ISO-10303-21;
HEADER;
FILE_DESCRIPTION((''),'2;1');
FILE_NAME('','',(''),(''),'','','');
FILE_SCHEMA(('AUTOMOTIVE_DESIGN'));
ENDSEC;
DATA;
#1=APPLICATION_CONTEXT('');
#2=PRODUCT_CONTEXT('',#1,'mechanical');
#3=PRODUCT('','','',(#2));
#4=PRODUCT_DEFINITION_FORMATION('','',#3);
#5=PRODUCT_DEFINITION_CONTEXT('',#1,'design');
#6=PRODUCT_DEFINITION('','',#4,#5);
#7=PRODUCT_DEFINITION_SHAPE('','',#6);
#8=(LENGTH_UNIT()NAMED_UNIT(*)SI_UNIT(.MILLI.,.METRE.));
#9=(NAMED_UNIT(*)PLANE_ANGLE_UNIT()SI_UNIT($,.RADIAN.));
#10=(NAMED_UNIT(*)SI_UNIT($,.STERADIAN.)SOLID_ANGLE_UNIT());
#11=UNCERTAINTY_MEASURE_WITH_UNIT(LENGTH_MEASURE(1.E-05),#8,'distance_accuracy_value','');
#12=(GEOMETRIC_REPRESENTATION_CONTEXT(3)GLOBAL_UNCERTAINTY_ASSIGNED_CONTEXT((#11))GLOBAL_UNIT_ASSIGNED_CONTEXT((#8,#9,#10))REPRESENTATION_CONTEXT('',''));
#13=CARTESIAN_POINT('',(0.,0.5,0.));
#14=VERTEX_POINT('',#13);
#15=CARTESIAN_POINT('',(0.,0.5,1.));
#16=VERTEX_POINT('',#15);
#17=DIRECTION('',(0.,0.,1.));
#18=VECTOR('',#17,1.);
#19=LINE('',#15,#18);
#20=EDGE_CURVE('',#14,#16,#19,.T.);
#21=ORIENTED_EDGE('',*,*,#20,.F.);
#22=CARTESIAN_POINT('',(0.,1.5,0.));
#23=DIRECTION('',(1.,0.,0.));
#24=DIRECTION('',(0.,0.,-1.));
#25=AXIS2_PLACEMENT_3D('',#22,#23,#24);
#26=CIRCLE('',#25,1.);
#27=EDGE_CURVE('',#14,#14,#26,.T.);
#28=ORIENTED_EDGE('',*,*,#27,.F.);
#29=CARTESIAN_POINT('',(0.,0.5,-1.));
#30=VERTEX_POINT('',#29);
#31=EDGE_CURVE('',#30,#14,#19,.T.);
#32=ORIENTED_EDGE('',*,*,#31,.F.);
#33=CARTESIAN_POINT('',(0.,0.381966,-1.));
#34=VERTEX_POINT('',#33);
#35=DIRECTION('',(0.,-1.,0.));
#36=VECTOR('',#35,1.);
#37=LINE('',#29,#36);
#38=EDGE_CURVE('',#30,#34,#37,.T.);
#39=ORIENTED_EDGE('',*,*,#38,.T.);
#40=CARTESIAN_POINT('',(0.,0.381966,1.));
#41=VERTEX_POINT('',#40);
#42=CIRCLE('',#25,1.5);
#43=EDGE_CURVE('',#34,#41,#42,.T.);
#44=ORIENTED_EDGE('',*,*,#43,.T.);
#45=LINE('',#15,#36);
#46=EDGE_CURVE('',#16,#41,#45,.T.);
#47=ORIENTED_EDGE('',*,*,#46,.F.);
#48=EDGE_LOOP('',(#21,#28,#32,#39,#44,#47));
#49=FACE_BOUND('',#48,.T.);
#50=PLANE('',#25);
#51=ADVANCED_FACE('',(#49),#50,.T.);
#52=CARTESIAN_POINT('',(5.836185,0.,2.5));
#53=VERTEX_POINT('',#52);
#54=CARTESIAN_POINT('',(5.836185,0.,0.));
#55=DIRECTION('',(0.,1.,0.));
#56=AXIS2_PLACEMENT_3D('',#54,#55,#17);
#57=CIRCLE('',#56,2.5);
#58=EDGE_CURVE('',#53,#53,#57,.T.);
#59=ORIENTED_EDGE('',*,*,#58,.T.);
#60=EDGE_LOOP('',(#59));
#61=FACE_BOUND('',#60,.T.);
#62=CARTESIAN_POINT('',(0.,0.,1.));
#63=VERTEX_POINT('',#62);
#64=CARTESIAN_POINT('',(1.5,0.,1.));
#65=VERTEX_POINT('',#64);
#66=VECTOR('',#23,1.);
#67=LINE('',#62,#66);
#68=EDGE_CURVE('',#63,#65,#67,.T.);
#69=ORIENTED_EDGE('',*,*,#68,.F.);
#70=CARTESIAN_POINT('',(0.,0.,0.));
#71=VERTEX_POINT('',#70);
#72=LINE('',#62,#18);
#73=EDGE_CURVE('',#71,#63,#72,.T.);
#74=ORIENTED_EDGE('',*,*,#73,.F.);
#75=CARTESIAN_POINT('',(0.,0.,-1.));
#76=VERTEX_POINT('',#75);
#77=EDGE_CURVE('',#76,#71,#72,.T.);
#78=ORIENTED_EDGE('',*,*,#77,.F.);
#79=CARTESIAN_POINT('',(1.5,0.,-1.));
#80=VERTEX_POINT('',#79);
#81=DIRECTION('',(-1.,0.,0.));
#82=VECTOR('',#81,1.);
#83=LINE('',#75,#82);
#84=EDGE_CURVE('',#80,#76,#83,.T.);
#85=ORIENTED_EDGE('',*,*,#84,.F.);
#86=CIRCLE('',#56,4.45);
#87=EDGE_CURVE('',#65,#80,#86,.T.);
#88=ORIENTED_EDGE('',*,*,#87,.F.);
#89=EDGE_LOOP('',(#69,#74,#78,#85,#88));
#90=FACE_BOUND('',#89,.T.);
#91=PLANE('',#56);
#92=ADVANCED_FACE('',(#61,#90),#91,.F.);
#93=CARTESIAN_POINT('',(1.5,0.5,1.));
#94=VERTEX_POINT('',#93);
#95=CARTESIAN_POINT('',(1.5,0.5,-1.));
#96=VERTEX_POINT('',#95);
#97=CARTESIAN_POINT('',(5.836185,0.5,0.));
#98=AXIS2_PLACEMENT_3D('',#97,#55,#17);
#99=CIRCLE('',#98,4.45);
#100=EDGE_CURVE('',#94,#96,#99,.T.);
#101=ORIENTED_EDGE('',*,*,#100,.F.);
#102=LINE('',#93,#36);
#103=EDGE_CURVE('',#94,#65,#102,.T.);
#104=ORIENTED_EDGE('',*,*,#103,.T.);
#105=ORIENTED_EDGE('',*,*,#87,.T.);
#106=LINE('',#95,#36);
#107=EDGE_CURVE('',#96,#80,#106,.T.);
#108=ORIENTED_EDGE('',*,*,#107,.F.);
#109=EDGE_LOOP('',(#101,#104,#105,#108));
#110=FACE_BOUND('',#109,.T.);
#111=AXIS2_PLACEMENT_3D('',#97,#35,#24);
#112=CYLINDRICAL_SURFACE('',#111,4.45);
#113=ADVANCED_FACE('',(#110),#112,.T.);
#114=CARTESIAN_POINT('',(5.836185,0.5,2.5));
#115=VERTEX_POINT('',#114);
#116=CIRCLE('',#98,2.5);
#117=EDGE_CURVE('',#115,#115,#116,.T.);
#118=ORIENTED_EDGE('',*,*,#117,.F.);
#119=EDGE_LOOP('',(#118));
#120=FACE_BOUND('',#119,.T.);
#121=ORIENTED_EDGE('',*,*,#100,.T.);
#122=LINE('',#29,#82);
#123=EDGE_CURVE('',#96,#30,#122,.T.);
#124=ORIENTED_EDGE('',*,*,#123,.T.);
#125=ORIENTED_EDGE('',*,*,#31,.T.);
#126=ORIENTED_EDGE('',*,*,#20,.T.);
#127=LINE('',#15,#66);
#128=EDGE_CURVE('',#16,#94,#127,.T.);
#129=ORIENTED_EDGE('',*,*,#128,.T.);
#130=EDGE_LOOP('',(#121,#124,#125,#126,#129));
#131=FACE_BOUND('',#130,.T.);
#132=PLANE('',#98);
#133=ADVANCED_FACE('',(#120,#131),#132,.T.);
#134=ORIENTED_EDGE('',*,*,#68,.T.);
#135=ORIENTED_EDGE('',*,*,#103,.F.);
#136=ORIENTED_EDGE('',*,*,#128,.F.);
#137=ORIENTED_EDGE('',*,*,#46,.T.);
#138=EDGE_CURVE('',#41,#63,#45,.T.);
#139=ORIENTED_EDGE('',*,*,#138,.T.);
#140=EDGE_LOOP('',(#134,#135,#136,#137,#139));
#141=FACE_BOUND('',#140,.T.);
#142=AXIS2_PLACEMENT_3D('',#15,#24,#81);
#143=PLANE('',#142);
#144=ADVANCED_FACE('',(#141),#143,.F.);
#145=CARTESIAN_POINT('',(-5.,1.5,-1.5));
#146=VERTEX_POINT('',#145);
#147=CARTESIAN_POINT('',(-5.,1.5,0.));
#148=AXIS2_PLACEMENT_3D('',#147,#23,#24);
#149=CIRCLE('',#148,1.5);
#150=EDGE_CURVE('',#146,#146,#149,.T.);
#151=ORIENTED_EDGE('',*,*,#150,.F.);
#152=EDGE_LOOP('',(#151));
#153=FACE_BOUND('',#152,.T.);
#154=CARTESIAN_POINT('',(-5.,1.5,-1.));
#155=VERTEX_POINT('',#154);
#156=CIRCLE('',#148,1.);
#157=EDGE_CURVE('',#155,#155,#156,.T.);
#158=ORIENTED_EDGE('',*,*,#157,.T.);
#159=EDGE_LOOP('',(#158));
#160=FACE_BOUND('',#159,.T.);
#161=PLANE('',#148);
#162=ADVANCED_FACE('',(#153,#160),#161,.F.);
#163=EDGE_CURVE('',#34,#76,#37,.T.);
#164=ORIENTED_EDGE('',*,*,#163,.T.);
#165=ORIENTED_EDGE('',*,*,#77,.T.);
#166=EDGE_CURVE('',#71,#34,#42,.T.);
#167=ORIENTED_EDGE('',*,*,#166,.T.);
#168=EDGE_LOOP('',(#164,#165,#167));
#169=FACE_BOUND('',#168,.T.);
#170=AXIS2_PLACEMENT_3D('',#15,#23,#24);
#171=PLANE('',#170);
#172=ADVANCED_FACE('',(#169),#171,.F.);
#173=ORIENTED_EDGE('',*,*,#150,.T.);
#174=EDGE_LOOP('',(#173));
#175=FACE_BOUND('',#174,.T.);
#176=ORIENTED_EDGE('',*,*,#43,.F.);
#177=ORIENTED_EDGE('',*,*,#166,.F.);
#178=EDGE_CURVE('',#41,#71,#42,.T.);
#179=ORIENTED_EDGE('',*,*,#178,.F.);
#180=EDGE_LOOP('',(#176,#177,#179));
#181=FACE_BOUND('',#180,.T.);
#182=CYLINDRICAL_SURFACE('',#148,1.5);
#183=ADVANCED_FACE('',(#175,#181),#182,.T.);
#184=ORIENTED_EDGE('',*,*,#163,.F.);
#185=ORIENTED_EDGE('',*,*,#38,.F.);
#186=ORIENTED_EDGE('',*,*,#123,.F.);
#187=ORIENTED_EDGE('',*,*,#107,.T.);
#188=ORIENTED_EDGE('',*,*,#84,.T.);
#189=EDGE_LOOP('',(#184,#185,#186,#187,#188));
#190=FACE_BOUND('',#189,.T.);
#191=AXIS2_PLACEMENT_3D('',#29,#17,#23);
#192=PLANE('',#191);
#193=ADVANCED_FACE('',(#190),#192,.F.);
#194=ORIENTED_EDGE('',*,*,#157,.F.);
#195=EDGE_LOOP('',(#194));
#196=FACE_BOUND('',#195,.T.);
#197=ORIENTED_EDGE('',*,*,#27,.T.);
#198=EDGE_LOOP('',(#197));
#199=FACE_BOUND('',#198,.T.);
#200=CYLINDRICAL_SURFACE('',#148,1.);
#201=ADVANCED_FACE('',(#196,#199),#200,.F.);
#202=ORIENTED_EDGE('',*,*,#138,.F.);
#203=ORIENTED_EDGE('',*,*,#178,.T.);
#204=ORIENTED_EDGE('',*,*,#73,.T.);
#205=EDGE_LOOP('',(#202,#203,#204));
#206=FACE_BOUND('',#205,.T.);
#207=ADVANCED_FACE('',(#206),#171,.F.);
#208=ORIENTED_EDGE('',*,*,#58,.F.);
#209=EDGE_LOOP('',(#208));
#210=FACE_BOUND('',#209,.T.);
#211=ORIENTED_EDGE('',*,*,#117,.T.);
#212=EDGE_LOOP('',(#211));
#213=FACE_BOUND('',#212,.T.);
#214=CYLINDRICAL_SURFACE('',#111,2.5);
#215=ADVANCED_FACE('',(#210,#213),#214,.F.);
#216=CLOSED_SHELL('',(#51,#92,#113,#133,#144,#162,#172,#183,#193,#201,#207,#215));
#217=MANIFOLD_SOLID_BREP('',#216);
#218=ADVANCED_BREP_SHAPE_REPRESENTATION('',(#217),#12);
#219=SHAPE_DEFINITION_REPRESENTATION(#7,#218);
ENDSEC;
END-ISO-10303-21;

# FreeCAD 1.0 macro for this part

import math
import FreeCAD as App
import Part
import Sketcher
from FreeCAD import Vector

doc = App.newDocument("Part")
body = doc.addObject("PartDesign::Body", "Body")

# Sketch on XZ plane
sketch1 = doc.addObject("Sketcher::SketchObject", "Sketch")
body.addObject(sketch1)
sketch1.AttachmentSupport = (doc.XZ_Plane, [""])
sketch1.MapMode = "FlatFace"
sketch1.addGeometry(Part.LineSegment(Vector(0, -1, 0), Vector(0, 1, 0)), False)
sketch1.addGeometry(Part.LineSegment(Vector(0, 1, 0), Vector(1.5, 1, 0)), False)
sketch1.addGeometry(Part.ArcOfCircle(Part.Circle(Vector(5.836185, 0, 0), Vector(0, 0, 1), 4.45), math.radians(-167.013639), math.radians(167.013639)), False)
sketch1.addGeometry(Part.LineSegment(Vector(1.5, -1, 0), Vector(0, -1, 0)), False)
sketch1.addGeometry(Part.Circle(Vector(5.836185, 0, 0), Vector(0, 0, 1), 2.5), False)
sketch1.addConstraint(Sketcher.Constraint("Coincident", 0, 2, 1, 1))
sketch1.addConstraint(Sketcher.Constraint("Coincident", 1, 2, 2, 2))
sketch1.addConstraint(Sketcher.Constraint("Coincident", 2, 1, 3, 1))
sketch1.addConstraint(Sketcher.Constraint("Coincident", 3, 2, 0, 1))
sketch1.addConstraint(Sketcher.Constraint("Vertical", 0))
sketch1.addConstraint(Sketcher.Constraint("Horizontal", 1))
sketch1.addConstraint(Sketcher.Constraint("Horizontal", 3))
sketch1.addConstraint(Sketcher.Constraint("Coincident", 4, 3, 2, 3))
sketch1.addConstraint(Sketcher.Constraint("Symmetric", 0, 2, 3, 2, -1, 1))
sketch1.addConstraint(Sketcher.Constraint("PointOnObject", 2, 3, -1))
sketch1.addConstraint(Sketcher.Constraint("Diameter", 4, 5.0))
sketch1.addConstraint(Sketcher.Constraint("DistanceY", 0, 1, 0, 2, 2.0))
sketch1.addConstraint(Sketcher.Constraint("Radius", 2, 4.45))
sketch1.addConstraint(Sketcher.Constraint("DistanceX", 1, 1, 1, 2, 1.5))
pad1 = doc.addObject("PartDesign::Pad", "Pad")
body.addObject(pad1)
pad1.Profile = sketch1
pad1.Length = 0.5
pad1.Reversed = True

# Sketch on YZ plane
sketch2 = doc.addObject("Sketcher::SketchObject", "Sketch001")
body.addObject(sketch2)
sketch2.AttachmentSupport = (doc.YZ_Plane, [""])
sketch2.MapMode = "FlatFace"
sketch2.addGeometry(Part.Circle(Vector(1.5, 0, 0), Vector(0, 0, 1), 1.5), False)
sketch2.addGeometry(Part.Circle(Vector(1.5, 0, 0), Vector(0, 0, 1), 1), False)
sketch2.addConstraint(Sketcher.Constraint("Coincident", 1, 3, 0, 3))
sketch2.addConstraint(Sketcher.Constraint("PointOnObject", 0, 3, -1))
sketch2.addConstraint(Sketcher.Constraint("Diameter", 0, 3.0))
sketch2.addConstraint(Sketcher.Constraint("Diameter", 1, 2.0))
sketch2.addConstraint(Sketcher.Constraint("DistanceX", -1, 1, 0, 3, 1.5))
pad2 = doc.addObject("PartDesign::Pad", "Pad001")
body.addObject(pad2)
pad2.Profile = sketch2
pad2.Length = 5
pad2.Reversed = True

doc.recompute()
